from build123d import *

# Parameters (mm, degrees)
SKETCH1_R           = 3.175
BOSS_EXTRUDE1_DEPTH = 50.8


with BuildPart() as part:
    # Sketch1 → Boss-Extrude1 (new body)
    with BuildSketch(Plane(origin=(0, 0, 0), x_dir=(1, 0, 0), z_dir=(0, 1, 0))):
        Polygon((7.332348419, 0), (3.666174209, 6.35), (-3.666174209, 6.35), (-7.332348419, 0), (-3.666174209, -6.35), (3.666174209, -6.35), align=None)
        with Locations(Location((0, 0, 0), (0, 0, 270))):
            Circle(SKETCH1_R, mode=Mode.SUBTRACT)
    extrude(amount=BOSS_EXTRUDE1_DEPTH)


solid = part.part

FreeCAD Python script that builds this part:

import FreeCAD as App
import Part
import Sketcher
Q = App.Units.Quantity


def add_polygon(sketch, points):
    """Adds a closed chain of lines whose ends are joined by coincident constraints."""
    first, n = sketch.GeometryCount, len(points)
    for a, b in zip(points, points[1:] + points[:1]):
        sketch.addGeometry(Part.LineSegment(App.Vector(*a, 0), App.Vector(*b, 0)), False)
    for i in range(n):
        sketch.addConstraint(Sketcher.Constraint("Coincident", first + i, 2, first + (i + 1) % n, 1))

doc = App.newDocument("Part")
params = doc.addObject("Spreadsheet::Sheet", "Params")
for row, (alias, value) in enumerate([
    ("sketch1_diameter", "0.25 in"),
    ("pad1_length", "2 in"),
], start=1):
    params.set(f"A{row}", alias)
    params.set(f"B{row}", "=" + value)
    params.setAlias(f"B{row}", alias)

body = doc.addObject("PartDesign::Body", "Body")

# Sketch on XZ plane
sketch1 = body.newObject("Sketcher::SketchObject", "Sketch")
sketch1.AttachmentSupport = (doc.getObject("XZ_Plane"), [""])
sketch1.MapMode = "FlatFace"
add_polygon(sketch1, [(7.332348, 0), (3.666174, -6.35), (-3.666174, -6.35), (-7.332348, 0), (-3.666174, 6.35), (3.666174, 6.35)])  # lines 0-5
sketch1.addGeometry(Part.Circle(App.Vector(0, 0, 0), App.Vector(0, 0, 1), 3.175), False)  # 6
sketch1.addConstraint(Sketcher.Constraint("Horizontal", 1))
sketch1.addConstraint(Sketcher.Constraint("Horizontal", 4))
sketch1.addConstraint(Sketcher.Constraint("Coincident", 6, 3, -1, 1))
sketch1.addConstraint(Sketcher.Constraint("Symmetric", 0, 2, 3, 2, -1, 1))
sketch1.addConstraint(Sketcher.Constraint("Symmetric", 2, 2, 5, 2, -1, 1))
sketch1.addConstraint(Sketcher.Constraint("PointOnObject", 2, 2, -1))
sketch1.addConstraint(Sketcher.Constraint("Parallel", 2, 5))
sketch1.addConstraint(Sketcher.Constraint("Vertical", 1, 2, 3, 2))
sketch1.addConstraint(Sketcher.Constraint("Diameter", 6, Q("0.25 in")))
sketch1.addConstraint(Sketcher.Constraint("Angle", 0, Q("-120 deg")))
sketch1.addConstraint(Sketcher.Constraint("DistanceY", 1, 2, 3, 2, Q("0.5 in")))
sketch1.addConstraint(Sketcher.Constraint("DistanceX", 1, 2, 1, 1, Q("7.332348 mm")))
sketch1.setExpression("Constraints[14]", "Params.sketch1_diameter")
pad1 = body.newObject("PartDesign::Pad", "Pad")
pad1.Profile = sketch1
pad1.setExpression("Length", "Params.pad1_length")
pad1.Reversed = True

doc.recompute()
